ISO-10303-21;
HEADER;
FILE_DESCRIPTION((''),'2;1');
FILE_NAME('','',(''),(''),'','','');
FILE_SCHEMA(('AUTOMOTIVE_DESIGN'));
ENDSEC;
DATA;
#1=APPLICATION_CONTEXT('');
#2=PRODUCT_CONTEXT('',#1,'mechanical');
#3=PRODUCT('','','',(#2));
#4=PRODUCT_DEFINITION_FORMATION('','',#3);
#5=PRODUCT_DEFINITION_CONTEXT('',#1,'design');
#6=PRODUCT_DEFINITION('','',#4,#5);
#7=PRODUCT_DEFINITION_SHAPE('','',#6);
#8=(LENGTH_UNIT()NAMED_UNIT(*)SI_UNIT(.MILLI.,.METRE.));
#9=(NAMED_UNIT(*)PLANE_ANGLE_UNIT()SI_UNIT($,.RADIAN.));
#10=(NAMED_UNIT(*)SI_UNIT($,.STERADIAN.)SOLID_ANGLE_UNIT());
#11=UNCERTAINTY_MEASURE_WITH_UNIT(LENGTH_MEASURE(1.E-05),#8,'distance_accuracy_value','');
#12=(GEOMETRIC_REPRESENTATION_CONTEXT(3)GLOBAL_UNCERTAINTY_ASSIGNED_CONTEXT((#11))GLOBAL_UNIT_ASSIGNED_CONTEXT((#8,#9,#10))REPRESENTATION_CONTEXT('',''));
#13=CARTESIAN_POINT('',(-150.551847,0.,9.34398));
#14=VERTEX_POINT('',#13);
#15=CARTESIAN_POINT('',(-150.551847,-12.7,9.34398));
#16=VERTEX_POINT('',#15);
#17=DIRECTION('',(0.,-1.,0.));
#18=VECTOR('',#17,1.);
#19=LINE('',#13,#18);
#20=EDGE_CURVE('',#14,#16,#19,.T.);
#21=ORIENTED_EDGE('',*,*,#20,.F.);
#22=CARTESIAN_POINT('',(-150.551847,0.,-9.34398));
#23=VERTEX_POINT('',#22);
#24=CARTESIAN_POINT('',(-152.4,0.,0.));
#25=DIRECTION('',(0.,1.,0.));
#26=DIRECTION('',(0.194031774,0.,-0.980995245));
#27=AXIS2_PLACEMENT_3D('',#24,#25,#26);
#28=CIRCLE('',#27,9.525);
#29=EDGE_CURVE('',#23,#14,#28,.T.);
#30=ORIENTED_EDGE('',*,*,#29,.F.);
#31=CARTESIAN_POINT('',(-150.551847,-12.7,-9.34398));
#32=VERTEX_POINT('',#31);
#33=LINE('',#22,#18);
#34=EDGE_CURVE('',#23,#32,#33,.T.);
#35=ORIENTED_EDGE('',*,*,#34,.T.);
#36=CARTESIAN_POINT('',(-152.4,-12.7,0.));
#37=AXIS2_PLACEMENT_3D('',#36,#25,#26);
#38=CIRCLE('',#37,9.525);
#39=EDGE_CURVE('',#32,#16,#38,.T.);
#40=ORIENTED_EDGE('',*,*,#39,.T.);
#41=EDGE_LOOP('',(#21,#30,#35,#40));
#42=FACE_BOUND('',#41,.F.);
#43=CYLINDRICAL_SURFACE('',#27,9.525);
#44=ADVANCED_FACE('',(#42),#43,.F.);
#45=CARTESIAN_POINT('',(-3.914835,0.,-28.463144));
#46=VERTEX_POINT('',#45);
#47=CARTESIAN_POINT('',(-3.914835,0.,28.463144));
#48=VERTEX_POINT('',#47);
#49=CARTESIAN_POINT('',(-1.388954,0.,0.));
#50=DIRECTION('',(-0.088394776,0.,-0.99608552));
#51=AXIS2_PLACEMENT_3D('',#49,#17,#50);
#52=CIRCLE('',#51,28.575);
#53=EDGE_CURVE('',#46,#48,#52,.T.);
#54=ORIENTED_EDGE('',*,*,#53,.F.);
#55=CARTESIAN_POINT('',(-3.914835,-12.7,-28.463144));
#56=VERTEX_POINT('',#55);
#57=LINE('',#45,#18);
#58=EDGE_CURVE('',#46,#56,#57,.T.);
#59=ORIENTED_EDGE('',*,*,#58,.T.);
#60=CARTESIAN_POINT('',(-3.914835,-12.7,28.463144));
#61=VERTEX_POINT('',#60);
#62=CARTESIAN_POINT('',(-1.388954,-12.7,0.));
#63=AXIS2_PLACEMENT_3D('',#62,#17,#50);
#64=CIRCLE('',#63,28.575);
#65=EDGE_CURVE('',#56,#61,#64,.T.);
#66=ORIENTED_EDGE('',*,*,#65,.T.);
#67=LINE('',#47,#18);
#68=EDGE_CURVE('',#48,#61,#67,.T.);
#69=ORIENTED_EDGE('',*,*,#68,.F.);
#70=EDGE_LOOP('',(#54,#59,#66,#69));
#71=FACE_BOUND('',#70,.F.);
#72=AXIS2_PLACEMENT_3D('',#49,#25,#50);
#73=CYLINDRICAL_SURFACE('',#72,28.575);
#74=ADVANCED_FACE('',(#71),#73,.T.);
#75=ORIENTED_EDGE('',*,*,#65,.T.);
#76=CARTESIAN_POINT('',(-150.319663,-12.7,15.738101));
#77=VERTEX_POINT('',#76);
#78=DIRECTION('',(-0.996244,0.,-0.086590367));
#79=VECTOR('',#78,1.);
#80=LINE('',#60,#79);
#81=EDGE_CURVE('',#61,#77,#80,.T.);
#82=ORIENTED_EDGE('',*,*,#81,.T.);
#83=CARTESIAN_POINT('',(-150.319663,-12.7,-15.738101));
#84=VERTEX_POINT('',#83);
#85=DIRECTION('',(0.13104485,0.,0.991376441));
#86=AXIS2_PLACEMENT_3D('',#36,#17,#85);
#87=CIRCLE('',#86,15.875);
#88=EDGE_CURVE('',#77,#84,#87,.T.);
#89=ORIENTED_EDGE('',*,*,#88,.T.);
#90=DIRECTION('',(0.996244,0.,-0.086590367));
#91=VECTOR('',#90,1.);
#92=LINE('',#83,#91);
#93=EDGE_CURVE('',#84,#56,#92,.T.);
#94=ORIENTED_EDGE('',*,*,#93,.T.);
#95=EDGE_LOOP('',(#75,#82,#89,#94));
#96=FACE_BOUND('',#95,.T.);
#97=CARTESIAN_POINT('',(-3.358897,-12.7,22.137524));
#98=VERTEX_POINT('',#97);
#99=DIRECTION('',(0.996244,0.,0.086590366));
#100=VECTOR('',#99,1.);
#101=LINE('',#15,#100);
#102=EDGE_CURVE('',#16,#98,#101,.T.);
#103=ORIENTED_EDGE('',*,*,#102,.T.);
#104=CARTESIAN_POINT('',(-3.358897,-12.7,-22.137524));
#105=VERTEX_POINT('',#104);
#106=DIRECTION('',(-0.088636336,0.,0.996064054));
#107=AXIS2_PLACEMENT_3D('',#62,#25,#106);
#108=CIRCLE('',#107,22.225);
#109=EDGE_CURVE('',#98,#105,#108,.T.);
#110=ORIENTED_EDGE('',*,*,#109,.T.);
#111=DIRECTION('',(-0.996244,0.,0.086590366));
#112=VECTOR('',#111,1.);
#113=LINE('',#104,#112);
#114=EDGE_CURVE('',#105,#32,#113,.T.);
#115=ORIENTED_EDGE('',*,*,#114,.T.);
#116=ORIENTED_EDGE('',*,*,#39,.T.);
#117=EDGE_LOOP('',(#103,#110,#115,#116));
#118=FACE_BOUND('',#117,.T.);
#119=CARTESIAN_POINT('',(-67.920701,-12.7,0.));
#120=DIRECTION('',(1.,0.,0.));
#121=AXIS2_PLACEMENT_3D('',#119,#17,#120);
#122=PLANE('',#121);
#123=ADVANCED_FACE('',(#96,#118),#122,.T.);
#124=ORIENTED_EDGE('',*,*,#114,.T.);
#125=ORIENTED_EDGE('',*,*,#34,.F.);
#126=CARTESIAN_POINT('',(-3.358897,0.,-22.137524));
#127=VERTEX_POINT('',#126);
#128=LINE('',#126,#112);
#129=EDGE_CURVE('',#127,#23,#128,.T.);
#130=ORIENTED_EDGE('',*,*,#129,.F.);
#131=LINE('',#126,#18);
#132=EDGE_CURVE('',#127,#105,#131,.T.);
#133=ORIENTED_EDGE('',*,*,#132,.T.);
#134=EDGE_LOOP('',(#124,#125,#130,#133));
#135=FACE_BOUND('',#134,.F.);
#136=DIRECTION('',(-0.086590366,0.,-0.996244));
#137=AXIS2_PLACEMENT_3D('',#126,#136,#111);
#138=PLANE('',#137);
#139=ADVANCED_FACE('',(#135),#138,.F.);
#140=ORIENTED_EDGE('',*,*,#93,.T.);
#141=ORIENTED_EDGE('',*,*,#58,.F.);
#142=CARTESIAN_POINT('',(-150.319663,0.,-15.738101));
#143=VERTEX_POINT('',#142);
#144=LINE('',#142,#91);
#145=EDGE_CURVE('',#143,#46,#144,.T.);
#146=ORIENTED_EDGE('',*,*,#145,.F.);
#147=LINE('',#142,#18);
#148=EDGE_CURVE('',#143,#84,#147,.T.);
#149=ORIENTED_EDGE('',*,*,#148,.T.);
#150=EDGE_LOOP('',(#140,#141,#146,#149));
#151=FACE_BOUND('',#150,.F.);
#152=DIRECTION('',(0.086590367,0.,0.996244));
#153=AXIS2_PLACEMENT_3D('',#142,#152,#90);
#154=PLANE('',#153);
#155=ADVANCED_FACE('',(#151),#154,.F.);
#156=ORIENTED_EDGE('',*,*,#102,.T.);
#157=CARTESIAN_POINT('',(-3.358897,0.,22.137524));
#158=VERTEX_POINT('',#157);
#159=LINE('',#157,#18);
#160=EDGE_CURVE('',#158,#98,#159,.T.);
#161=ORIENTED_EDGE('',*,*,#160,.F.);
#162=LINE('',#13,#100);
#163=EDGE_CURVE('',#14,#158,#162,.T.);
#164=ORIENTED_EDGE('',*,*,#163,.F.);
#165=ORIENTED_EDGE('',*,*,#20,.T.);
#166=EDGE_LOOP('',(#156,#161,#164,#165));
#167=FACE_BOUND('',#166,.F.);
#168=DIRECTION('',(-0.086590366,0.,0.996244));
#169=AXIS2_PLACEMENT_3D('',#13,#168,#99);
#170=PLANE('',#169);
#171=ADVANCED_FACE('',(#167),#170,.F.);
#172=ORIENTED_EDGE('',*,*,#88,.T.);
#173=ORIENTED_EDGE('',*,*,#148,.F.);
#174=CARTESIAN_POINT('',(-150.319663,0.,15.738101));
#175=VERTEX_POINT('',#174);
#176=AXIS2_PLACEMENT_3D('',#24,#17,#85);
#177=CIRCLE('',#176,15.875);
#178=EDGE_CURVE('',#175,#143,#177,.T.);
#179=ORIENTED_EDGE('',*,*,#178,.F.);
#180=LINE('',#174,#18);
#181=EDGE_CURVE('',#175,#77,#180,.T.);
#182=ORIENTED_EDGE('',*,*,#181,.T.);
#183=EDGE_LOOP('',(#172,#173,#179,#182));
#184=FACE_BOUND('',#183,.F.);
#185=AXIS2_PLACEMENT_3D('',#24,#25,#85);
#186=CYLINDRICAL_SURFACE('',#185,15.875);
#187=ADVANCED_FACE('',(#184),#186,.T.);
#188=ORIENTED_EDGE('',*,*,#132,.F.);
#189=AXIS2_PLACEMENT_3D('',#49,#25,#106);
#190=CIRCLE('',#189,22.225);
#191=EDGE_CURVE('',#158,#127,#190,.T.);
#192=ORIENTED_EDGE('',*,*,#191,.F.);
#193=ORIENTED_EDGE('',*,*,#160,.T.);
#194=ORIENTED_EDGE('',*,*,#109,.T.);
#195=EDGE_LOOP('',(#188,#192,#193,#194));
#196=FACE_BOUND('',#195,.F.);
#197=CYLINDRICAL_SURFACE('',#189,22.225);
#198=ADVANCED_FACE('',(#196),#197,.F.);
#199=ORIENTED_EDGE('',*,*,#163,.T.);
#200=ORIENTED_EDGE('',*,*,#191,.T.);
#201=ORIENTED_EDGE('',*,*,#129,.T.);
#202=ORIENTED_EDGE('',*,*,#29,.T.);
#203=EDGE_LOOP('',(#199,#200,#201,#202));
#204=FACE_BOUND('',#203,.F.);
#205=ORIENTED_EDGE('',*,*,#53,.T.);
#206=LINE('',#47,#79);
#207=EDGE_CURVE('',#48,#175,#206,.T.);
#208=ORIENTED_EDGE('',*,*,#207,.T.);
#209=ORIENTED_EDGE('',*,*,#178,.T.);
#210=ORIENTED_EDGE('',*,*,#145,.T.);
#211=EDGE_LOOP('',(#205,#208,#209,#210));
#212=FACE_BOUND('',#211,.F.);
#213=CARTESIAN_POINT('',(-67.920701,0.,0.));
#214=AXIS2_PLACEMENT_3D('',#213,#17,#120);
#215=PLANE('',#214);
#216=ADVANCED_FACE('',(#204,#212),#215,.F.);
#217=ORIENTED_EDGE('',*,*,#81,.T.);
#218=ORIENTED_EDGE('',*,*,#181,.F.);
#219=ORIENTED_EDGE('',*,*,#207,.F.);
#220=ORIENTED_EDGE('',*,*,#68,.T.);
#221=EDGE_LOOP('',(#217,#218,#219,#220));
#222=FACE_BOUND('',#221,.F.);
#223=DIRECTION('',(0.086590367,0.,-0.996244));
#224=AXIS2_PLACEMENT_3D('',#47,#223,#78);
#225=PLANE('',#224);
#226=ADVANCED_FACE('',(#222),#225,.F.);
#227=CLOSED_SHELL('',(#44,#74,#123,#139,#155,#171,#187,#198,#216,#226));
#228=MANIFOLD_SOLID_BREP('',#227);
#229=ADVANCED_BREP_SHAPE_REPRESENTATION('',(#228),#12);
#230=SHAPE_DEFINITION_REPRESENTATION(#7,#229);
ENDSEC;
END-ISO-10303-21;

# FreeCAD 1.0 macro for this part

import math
import FreeCAD as App
import Part
import Sketcher
Q = App.Units.Quantity

doc = App.newDocument("Part")
params = doc.addObject("Spreadsheet::Sheet", "Params")
for row, (alias, value) in enumerate([
    ("sketch1_radius", "1.125 in"),
    ("sketch1_radius2", "0.625 in"),
    ("sketch1_radius3", "0.875 in"),
    ("sketch1_radius4", "0.375 in"),
    ("pad1_length", "0.5 in"),
], start=1):
    params.set(f"A{row}", alias)
    params.set(f"B{row}", "=" + value)
    params.setAlias(f"B{row}", alias)

body = doc.addObject("PartDesign::Body", "Body")

# Sketch on XZ plane
sketch1 = body.newObject("Sketcher::SketchObject", "Sketch")
sketch1.AttachmentSupport = (doc.getObject("XZ_Plane"), [""])
sketch1.MapMode = "FlatFace"
sketch1.addGeometry(Part.ArcOfCircle(Part.Circle(App.Vector(-1, 0, 0), App.Vector(0, 0, 1), 29), math.radians(-95), math.radians(95)), False)
sketch1.addGeometry(Part.LineSegment(App.Vector(-4, 28, 0), App.Vector(-150, 16, 0)), False)
sketch1.addGeometry(Part.ArcOfCircle(Part.Circle(App.Vector(-152, 0, 0), App.Vector(0, 0, 1), 16), math.radians(82), math.radians(278)), False)
sketch1.addGeometry(Part.LineSegment(App.Vector(-150, -16, 0), App.Vector(-4, -28, 0)), False)
sketch1.addGeometry(Part.LineSegment(App.Vector(-151, 9, 0), App.Vector(-3, 22, 0)), False)
sketch1.addGeometry(Part.ArcOfCircle(Part.Circle(App.Vector(-1, 0, 0), App.Vector(0, 0, 1), 22), math.radians(-95), math.radians(95)), False)
sketch1.addGeometry(Part.LineSegment(App.Vector(-3, -22, 0), App.Vector(-151, -9, 0)), False)
sketch1.addGeometry(Part.ArcOfCircle(Part.Circle(App.Vector(-152, 0, 0), App.Vector(0, 0, 1), 10), math.radians(79), math.radians(281)), False)
sketch1.addConstraint(Sketcher.Constraint("Coincident", 0, 2, 1, 1))
sketch1.addConstraint(Sketcher.Constraint("Coincident", 1, 2, 2, 1))
sketch1.addConstraint(Sketcher.Constraint("Coincident", 2, 2, 3, 1))
sketch1.addConstraint(Sketcher.Constraint("Coincident", 3, 2, 0, 1))
sketch1.addConstraint(Sketcher.Constraint("Coincident", 4, 2, 5, 2))
sketch1.addConstraint(Sketcher.Constraint("Coincident", 5, 1, 6, 1))
sketch1.addConstraint(Sketcher.Constraint("Coincident", 6, 2, 7, 2))
sketch1.addConstraint(Sketcher.Constraint("Coincident", 7, 1, 4, 1))
sketch1.addConstraint(Sketcher.Constraint("Coincident", 5, 3, 0, 3))
sketch1.addConstraint(Sketcher.Constraint("Coincident", 7, 3, 2, 3))
sketch1.addConstraint(Sketcher.Constraint("Symmetric", 1, 2, 2, 2, -1))
sketch1.addConstraint(Sketcher.Constraint("Symmetric", 0, 2, 3, 2, -1))
sketch1.addConstraint(Sketcher.Constraint("Parallel", 1, 4))
sketch1.addConstraint(Sketcher.Constraint("Parallel", 3, 6))
sketch1.addConstraint(Sketcher.Constraint("Vertical", 4, 2, 5, 1))
sketch1.addConstraint(Sketcher.Constraint("DistanceX", 2, 3, -1, 1, Q("6 in")))
sketch1.addConstraint(Sketcher.Constraint("Radius", 0, Q("1.125 in")))
sketch1.addConstraint(Sketcher.Constraint("Radius", 2, Q("0.625 in")))
sketch1.addConstraint(Sketcher.Constraint("Radius", 5, Q("0.875 in")))
sketch1.addConstraint(Sketcher.Constraint("Radius", 7, Q("0.375 in")))
sketch1.addConstraint(Sketcher.Constraint("DistanceY", -1, 1, 1, 2, Q("15.738101 mm")))
sketch1.addConstraint(Sketcher.Constraint("Distance", 4, Q("147.747891 mm")))
sketch1.addConstraint(Sketcher.Constraint("DistanceX", 0, 2, 5, 3, Q("2.525881 mm")))
sketch1.addConstraint(Sketcher.Constraint("DistanceX", 1, 2, 0, 2, Q("146.404828 mm")))
sketch1.setExpression("Constraints[16]", "Params.sketch1_radius")
sketch1.setExpression("Constraints[17]", "Params.sketch1_radius2")
sketch1.setExpression("Constraints[18]", "Params.sketch1_radius3")
sketch1.setExpression("Constraints[19]", "Params.sketch1_radius4")
pad1 = body.newObject("PartDesign::Pad", "Pad")
pad1.Profile = sketch1
pad1.setExpression("Length", "Params.pad1_length")

doc.recompute()
